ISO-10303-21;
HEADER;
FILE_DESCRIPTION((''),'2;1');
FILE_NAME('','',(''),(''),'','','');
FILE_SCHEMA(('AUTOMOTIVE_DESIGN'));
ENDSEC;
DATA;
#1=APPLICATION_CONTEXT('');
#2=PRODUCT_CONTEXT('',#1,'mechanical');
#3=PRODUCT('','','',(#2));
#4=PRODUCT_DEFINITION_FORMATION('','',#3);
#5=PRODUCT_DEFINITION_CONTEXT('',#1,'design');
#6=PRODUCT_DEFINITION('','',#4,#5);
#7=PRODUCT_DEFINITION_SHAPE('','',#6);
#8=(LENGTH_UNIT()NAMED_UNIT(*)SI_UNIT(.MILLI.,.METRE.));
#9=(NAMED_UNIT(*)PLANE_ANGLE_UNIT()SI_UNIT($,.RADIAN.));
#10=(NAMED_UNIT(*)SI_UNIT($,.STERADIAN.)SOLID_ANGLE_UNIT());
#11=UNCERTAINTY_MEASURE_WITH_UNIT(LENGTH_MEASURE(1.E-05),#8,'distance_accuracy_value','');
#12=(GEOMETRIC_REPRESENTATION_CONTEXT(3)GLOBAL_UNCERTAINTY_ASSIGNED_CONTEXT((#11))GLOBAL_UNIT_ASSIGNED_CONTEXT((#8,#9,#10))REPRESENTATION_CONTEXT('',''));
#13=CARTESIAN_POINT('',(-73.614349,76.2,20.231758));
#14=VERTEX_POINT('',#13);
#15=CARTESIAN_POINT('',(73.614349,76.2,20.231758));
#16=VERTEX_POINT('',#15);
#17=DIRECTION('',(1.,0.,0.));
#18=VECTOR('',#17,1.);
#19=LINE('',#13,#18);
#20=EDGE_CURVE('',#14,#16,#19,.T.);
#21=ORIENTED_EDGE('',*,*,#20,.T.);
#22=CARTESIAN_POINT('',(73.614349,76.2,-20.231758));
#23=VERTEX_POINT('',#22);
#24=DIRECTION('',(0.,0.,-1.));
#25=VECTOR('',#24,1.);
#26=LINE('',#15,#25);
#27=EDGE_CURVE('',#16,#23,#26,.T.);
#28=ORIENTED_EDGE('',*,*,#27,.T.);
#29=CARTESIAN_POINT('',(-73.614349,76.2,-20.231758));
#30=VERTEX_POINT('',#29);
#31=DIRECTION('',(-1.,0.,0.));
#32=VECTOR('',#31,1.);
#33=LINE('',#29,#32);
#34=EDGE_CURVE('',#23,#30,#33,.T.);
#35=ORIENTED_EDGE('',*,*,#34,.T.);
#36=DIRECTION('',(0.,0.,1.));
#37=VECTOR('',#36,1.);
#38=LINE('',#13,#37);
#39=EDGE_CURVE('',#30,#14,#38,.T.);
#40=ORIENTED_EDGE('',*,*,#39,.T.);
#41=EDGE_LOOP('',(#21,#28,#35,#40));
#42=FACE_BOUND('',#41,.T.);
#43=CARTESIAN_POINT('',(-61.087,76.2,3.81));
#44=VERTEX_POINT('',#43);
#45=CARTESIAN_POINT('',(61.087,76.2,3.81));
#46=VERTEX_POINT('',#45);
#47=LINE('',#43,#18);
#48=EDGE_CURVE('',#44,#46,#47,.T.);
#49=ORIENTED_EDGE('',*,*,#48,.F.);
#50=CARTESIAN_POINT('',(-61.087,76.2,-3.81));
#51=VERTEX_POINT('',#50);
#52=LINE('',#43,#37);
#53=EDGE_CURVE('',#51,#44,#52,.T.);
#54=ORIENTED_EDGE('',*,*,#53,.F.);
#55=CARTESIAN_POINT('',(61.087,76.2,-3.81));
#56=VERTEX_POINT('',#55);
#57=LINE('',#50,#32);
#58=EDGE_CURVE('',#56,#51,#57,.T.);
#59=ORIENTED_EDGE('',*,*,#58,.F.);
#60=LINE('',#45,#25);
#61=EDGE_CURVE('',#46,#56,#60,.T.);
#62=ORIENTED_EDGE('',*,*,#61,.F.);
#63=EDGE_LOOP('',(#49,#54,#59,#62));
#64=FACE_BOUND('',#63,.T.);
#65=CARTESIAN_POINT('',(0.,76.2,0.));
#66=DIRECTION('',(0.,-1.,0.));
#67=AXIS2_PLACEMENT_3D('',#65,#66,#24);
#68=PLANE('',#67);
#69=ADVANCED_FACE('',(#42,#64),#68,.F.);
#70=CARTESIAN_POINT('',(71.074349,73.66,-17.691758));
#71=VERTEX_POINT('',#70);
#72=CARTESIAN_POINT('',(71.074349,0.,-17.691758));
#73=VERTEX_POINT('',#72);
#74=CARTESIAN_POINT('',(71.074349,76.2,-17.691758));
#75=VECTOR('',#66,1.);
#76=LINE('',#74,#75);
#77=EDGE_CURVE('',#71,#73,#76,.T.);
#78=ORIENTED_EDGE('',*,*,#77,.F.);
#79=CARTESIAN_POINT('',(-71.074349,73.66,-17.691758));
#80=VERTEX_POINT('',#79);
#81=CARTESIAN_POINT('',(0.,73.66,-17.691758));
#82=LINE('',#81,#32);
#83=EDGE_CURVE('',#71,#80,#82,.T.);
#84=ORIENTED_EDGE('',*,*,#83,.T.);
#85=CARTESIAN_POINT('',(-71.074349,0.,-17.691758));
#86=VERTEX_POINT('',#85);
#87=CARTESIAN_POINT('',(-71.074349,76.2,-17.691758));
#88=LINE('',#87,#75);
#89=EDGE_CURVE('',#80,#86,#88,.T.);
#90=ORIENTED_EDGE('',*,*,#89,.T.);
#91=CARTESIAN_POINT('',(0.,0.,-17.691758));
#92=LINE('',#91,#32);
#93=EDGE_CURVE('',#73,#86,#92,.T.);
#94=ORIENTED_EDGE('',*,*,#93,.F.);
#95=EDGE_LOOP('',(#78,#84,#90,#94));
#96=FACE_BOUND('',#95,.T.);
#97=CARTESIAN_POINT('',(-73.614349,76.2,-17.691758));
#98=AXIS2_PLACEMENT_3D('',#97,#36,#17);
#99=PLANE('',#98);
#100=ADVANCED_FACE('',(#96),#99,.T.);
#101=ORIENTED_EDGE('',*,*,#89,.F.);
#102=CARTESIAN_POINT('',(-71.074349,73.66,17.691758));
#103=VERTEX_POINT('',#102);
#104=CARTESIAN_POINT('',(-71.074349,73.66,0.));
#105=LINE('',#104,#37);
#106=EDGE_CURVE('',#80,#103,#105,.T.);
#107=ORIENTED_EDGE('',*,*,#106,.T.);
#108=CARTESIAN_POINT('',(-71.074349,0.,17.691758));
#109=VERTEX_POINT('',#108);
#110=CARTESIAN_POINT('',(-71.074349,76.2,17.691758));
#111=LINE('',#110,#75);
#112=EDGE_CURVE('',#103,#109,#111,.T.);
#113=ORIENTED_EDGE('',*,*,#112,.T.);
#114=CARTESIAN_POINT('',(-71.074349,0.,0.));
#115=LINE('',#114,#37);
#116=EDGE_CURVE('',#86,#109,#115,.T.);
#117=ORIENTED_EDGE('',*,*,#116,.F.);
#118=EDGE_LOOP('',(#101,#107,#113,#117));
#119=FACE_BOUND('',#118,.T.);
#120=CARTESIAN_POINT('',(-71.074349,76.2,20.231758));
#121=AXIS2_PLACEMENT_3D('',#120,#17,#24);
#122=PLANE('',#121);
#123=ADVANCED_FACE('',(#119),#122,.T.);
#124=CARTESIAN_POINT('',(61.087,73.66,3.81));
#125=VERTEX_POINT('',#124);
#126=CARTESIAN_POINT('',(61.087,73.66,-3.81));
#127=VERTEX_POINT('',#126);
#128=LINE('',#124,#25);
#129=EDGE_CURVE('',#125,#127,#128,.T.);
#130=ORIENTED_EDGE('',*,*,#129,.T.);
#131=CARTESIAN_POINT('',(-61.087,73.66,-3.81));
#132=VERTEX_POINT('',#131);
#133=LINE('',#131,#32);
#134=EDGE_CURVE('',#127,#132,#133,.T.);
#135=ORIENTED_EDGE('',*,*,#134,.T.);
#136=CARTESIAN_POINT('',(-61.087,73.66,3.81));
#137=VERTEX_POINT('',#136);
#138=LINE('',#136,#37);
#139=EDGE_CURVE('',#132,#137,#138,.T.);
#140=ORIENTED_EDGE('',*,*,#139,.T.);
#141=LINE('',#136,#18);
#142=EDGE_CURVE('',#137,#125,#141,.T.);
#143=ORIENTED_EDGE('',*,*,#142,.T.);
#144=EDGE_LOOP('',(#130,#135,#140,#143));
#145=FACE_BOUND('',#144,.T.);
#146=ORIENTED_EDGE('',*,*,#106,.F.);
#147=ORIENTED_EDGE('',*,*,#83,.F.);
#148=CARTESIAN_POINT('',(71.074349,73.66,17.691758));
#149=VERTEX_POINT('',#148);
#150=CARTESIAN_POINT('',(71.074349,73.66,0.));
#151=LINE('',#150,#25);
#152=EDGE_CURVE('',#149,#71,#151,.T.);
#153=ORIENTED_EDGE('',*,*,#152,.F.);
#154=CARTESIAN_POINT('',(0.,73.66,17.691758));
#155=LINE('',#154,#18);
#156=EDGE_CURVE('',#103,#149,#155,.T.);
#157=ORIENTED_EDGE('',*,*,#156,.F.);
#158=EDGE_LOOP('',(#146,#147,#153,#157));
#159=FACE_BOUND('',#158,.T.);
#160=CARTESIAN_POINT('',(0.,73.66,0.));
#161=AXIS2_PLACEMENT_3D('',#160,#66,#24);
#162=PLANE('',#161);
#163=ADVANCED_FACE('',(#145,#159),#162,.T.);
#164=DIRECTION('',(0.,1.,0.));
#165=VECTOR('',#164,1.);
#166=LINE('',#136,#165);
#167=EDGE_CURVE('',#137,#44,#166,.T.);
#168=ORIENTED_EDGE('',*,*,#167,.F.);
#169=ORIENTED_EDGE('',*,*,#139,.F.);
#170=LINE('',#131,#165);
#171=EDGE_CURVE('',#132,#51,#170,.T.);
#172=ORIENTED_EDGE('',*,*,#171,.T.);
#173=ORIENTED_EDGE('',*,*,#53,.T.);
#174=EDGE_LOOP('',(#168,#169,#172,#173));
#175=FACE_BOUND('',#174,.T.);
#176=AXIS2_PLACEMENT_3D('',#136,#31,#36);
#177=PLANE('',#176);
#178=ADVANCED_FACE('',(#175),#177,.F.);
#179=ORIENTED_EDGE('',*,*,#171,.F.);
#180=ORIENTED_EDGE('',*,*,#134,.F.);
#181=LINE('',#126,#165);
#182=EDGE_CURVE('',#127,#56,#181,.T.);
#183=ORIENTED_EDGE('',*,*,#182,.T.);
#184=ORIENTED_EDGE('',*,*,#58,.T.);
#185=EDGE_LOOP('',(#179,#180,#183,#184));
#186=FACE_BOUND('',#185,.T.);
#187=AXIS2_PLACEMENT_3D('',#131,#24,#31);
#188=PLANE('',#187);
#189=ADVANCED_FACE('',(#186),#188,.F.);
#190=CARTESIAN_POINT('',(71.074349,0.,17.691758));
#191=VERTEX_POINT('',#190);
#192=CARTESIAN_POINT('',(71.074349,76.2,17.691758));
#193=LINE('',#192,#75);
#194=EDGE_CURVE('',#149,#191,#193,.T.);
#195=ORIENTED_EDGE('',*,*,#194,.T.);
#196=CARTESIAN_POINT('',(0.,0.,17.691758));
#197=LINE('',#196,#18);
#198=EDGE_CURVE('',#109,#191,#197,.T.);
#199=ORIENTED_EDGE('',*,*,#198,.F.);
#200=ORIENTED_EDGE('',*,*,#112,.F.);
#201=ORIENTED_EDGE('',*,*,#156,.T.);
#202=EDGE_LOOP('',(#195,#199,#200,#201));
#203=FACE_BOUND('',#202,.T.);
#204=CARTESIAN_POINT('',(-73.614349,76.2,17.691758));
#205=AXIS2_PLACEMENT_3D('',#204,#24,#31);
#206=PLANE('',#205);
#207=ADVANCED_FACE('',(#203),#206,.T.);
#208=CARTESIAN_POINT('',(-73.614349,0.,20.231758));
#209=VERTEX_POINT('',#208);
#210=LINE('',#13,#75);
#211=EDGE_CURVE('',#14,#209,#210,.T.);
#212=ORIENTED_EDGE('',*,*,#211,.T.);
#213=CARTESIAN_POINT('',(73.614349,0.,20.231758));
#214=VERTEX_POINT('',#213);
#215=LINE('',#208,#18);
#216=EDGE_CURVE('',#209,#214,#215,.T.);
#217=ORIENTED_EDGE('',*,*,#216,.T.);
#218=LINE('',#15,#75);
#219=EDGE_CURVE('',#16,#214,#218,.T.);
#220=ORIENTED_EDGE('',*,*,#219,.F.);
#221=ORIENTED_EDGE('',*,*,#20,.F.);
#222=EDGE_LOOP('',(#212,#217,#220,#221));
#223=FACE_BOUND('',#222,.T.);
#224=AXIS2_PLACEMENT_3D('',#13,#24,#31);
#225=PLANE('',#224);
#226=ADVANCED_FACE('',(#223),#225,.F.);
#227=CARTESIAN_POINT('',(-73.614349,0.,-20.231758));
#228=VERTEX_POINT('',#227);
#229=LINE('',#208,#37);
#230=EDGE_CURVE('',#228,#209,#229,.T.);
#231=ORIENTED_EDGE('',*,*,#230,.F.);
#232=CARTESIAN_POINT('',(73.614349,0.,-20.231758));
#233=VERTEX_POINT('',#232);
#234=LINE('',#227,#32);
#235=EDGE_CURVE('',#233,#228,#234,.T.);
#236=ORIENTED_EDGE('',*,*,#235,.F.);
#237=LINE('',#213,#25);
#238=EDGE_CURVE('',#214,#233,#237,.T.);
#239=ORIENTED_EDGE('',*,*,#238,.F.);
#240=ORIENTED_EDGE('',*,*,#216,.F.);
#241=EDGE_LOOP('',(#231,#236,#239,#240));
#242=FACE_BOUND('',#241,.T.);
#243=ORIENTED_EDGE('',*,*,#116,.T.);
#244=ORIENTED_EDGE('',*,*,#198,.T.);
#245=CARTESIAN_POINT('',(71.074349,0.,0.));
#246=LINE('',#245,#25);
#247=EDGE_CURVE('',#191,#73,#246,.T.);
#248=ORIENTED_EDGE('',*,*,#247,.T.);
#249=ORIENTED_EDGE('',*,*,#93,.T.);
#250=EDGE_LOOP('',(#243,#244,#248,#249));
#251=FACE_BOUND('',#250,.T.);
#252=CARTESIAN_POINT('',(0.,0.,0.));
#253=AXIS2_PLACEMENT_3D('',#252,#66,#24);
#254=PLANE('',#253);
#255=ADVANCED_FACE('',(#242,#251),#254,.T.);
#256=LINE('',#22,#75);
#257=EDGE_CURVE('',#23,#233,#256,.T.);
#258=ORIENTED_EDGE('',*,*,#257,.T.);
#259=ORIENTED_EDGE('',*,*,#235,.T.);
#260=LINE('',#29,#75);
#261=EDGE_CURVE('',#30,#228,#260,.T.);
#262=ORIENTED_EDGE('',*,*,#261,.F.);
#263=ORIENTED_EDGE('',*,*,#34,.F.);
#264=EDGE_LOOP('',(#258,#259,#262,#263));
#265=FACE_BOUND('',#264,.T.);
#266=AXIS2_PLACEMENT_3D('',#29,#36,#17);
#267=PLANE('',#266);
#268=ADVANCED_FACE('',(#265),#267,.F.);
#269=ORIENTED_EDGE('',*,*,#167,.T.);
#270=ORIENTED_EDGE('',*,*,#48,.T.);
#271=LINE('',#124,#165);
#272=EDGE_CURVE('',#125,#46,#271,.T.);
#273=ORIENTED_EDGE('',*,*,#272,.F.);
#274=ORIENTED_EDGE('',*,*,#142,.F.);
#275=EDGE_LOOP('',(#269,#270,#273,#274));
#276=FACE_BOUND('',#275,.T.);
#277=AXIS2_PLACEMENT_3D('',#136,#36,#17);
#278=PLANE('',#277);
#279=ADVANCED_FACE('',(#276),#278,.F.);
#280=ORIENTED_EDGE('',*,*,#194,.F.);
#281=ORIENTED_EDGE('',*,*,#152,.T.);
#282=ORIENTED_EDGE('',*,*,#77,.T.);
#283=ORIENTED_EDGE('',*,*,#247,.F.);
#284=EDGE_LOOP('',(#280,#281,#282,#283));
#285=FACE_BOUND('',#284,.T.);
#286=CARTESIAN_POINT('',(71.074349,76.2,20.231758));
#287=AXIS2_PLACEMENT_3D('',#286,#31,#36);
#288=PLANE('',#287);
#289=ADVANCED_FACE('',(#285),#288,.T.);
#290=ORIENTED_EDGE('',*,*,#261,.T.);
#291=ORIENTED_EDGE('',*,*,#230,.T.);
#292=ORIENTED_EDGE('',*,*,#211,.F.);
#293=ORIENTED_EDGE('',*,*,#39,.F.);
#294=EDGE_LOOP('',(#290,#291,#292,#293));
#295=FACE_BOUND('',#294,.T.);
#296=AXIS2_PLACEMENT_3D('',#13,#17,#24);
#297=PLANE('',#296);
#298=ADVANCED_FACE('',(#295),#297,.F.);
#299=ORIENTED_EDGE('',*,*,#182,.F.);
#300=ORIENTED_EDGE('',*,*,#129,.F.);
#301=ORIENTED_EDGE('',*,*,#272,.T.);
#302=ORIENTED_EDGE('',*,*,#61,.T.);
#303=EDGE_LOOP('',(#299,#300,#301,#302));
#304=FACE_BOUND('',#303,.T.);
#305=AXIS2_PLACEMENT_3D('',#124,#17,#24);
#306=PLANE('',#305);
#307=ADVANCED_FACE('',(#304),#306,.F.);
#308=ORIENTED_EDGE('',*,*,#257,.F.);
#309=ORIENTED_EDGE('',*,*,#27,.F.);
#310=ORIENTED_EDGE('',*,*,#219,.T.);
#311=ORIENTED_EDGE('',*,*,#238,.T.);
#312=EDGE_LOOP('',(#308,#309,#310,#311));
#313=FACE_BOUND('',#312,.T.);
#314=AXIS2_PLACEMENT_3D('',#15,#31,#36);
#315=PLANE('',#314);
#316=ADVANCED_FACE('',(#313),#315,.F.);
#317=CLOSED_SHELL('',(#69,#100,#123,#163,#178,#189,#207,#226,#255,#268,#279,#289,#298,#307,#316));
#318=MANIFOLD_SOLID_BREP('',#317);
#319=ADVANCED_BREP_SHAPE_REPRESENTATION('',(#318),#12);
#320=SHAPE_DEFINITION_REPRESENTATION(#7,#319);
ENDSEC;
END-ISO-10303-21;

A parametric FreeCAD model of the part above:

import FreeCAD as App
import Part
import Sketcher
Q = App.Units.Quantity


def faces_at(feature, points):
    """Names of the faces that lie closest to the given points."""
    faces = feature.Shape.Faces
    near = lambda p: min(range(len(faces)), key=lambda i: faces[i].distToShape(Part.Vertex(*p))[0])
    return sorted({f"Face{near(p) + 1}" for p in points})

doc = App.newDocument("Part")
body = doc.addObject("PartDesign::Body", "Body")

sketch1 = body.newObject("Sketcher::SketchObject", "Sketch")
sketch1.AttachmentSupport = (doc.getObject("XZ_Plane"), [""])
sketch1.MapMode = "FlatFace"
sketch1.addGeometry([
    Part.LineSegment(App.Vector(-73.614349, -20.231758, 0), App.Vector(-73.614349, 20.231758, 0)),
    Part.LineSegment(App.Vector(-73.614349, 20.231758, 0), App.Vector(73.614349, 20.231758, 0)),
    Part.LineSegment(App.Vector(73.614349, 20.231758, 0), App.Vector(73.614349, -20.231758, 0)),
    Part.LineSegment(App.Vector(73.614349, -20.231758, 0), App.Vector(-73.614349, -20.231758, 0)),
], False)
sketch1.addConstraint([
    Sketcher.Constraint("Coincident", 0, 2, 1, 1),
    Sketcher.Constraint("Coincident", 1, 2, 2, 1),
    Sketcher.Constraint("Coincident", 2, 2, 3, 1),
    Sketcher.Constraint("Coincident", 3, 2, 0, 1),
    Sketcher.Constraint("Vertical", 0),
    Sketcher.Constraint("Horizontal", 1),
    Sketcher.Constraint("Vertical", 2),
    Sketcher.Constraint("Horizontal", 3),
    Sketcher.Constraint("Symmetric", 0, 2, 2, 2, -1, 1),
    Sketcher.Constraint("DistanceX", 1, 1, 1, 2, Q("147.228697 mm")),
    Sketcher.Constraint("DistanceY", 0, 1, 0, 2, Q("40.463516 mm")),
])
pad1 = body.newObject("PartDesign::Pad", "Pad")
pad1.Profile = sketch1
pad1.Length = Q("3 in")
pad1.Reversed = True
doc.recompute()

thickness = body.newObject("PartDesign::Thickness", "Thickness")
thickness.Base = (pad1, faces_at(pad1, [(0, 0, 0)]))
thickness.Value = Q("0.1 in")
thickness.Reversed = True
thickness.Join = "Intersection"

sketch2 = body.newObject("Sketcher::SketchObject", "Sketch001")
sketch2.AttachmentSupport = (doc.getObject("XZ_Plane"), [""])
sketch2.MapMode = "FlatFace"
sketch2.AttachmentOffset = App.Placement(App.Vector(0, 0, -3 * 25.4), App.Rotation())
sketch2.addGeometry([
    Part.LineSegment(App.Vector(-61.087, -3.81, 0), App.Vector(-61.087, 3.81, 0)),
    Part.LineSegment(App.Vector(-61.087, 3.81, 0), App.Vector(61.087, 3.81, 0)),
    Part.LineSegment(App.Vector(61.087, 3.81, 0), App.Vector(61.087, -3.81, 0)),
    Part.LineSegment(App.Vector(61.087, -3.81, 0), App.Vector(-61.087, -3.81, 0)),
], False)
sketch2.addConstraint([
    Sketcher.Constraint("Coincident", 0, 2, 1, 1),
    Sketcher.Constraint("Coincident", 1, 2, 2, 1),
    Sketcher.Constraint("Coincident", 2, 2, 3, 1),
    Sketcher.Constraint("Coincident", 3, 2, 0, 1),
    Sketcher.Constraint("Vertical", 0),
    Sketcher.Constraint("Horizontal", 1),
    Sketcher.Constraint("Vertical", 2),
    Sketcher.Constraint("Horizontal", 3),
    Sketcher.Constraint("Symmetric", 0, 2, 2, 2, -1, 1),
    Sketcher.Constraint("DistanceY", 0, 1, 0, 2, Q("0.3 in")),
    Sketcher.Constraint("DistanceX", 1, 1, 1, 2, Q("4.81 in")),
])
pocket1 = body.newObject("PartDesign::Pocket", "Pocket")
pocket1.Profile = sketch2
pocket1.Length = Q("0.1 in")
pocket1.Reversed = True

doc.recompute()
